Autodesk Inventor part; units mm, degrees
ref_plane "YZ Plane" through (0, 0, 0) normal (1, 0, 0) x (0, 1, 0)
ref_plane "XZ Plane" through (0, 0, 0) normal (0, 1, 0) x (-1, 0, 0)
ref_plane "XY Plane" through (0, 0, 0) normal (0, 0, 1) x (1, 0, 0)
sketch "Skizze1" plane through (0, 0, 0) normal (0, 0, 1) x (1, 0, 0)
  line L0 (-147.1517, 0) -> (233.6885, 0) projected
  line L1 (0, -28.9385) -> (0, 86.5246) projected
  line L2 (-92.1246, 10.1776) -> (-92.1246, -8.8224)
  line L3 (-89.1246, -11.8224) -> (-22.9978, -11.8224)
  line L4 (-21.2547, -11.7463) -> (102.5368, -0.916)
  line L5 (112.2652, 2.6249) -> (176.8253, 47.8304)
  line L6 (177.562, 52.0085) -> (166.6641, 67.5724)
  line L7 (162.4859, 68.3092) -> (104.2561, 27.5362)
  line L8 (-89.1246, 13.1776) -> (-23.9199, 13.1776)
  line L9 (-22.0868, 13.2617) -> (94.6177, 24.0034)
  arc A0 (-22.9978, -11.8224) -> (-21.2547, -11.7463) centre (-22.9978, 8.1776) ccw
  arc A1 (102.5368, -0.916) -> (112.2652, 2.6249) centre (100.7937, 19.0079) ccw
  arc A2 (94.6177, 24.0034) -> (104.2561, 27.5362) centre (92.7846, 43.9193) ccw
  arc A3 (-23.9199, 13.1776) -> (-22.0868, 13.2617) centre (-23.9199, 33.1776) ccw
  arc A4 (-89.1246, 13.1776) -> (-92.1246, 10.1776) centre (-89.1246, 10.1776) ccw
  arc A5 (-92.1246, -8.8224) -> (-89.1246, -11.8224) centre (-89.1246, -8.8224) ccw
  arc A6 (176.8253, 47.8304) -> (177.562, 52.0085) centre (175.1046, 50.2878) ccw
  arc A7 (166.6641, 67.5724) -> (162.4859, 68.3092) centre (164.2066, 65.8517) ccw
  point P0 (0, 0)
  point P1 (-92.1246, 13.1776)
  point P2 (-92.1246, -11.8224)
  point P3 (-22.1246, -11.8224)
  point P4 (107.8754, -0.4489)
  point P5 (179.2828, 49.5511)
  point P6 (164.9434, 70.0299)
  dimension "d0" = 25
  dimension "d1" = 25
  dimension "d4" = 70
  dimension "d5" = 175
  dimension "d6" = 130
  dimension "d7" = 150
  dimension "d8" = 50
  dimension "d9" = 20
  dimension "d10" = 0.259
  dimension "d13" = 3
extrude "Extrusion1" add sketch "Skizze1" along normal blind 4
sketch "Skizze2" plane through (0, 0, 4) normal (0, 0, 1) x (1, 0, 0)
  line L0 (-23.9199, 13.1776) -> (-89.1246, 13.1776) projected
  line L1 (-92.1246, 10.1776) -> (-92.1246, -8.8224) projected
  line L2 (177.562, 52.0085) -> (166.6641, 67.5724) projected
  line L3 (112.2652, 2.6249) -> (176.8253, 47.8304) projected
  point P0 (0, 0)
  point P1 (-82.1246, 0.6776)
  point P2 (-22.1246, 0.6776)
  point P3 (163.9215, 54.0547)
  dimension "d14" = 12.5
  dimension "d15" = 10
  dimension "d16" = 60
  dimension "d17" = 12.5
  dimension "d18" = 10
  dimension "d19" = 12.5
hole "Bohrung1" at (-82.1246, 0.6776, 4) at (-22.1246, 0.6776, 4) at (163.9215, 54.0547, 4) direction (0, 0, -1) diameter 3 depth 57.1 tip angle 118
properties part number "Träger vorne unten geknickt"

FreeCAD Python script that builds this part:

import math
import FreeCAD as App
import Part
import Sketcher
from FreeCAD import Vector
Q = App.Units.Quantity

doc = App.newDocument("Part")
body = doc.addObject("PartDesign::Body", "Body")

# Sketch on XY plane
sketch1 = body.newObject("Sketcher::SketchObject", "Sketch")
sketch1.AttachmentSupport = (doc.getObject("XY_Plane"), [""])
sketch1.MapMode = "FlatFace"
sketch1.addGeometry(Part.LineSegment(Vector(-92.1246, 10.1776, 0), Vector(-92.1246, -8.8224, 0)), False)
sketch1.addGeometry(Part.ArcOfCircle(Part.Circle(Vector(-89.1246, -8.8224, 0), Vector(0, 0, 1), 3), math.radians(180), math.radians(270)), False)
sketch1.addGeometry(Part.LineSegment(Vector(-89.1246, -11.8224, 0), Vector(-22.9978, -11.8224, 0)), False)
sketch1.addGeometry(Part.ArcOfCircle(Part.Circle(Vector(-22.997854, 8.18008, 0), Vector(0, 0, 1), 20.00248), math.radians(-89.999845), math.radians(-85.000509)), False)
sketch1.addGeometry(Part.LineSegment(Vector(-21.2547, -11.7463, 0), Vector(102.5368, -0.916, 0)), False)
sketch1.addGeometry(Part.ArcOfCircle(Part.Circle(Vector(100.7937, 19.0079, 0), Vector(0, 0, 1), 20.000005), math.radians(-85.000044), math.radians(-55)), False)
sketch1.addGeometry(Part.LineSegment(Vector(112.2652, 2.6249, 0), Vector(176.8253, 47.8304, 0)), False)
sketch1.addGeometry(Part.ArcOfCircle(Part.Circle(Vector(175.1046, 50.2878, 0), Vector(0, 0, 1), 2.999937), math.radians(-54.999844), math.radians(35.000156)), False)
sketch1.addGeometry(Part.LineSegment(Vector(177.562, 52.0085, 0), Vector(166.6641, 67.5724, 0)), False)
sketch1.addGeometry(Part.ArcOfCircle(Part.Circle(Vector(164.2066, 65.8517, 0), Vector(0, 0, 1), 3.000019), math.radians(34.999061), math.radians(124.999061)), False)
sketch1.addGeometry(Part.LineSegment(Vector(162.4859, 68.3092, 0), Vector(104.2561, 27.5362, 0)), False)
sketch1.addGeometry(Part.ArcOfCircle(Part.Circle(Vector(92.7846, 43.9193, 0), Vector(0, 0, 1), 20.000083), math.radians(-84.741197), math.radians(-55.000165)), False)
sketch1.addGeometry(Part.LineSegment(Vector(94.6177, 24.0034, 0), Vector(-22.0868, 13.2617, 0)), False)
sketch1.addGeometry(Part.ArcOfCircle(Part.Circle(Vector(-23.920809, 33.217195, 0), Vector(0, 0, 1), 20.039595), math.radians(-89.997402), math.radians(-84.748986)), False)
sketch1.addGeometry(Part.LineSegment(Vector(-23.9199, 13.1776, 0), Vector(-89.1246, 13.1776, 0)), False)
sketch1.addGeometry(Part.ArcOfCircle(Part.Circle(Vector(-89.1246, 10.1776, 0), Vector(0, 0, 1), 3), math.radians(90), math.radians(180)), False)
sketch1.addConstraint(Sketcher.Constraint("Coincident", 0, 2, 1, 1))
sketch1.addConstraint(Sketcher.Constraint("Coincident", 1, 2, 2, 1))
sketch1.addConstraint(Sketcher.Constraint("Coincident", 2, 2, 3, 1))
sketch1.addConstraint(Sketcher.Constraint("Coincident", 3, 2, 4, 1))
sketch1.addConstraint(Sketcher.Constraint("Coincident", 4, 2, 5, 1))
sketch1.addConstraint(Sketcher.Constraint("Coincident", 5, 2, 6, 1))
sketch1.addConstraint(Sketcher.Constraint("Coincident", 6, 2, 7, 1))
sketch1.addConstraint(Sketcher.Constraint("Coincident", 7, 2, 8, 1))
sketch1.addConstraint(Sketcher.Constraint("Coincident", 8, 2, 9, 1))
sketch1.addConstraint(Sketcher.Constraint("Coincident", 9, 2, 10, 1))
sketch1.addConstraint(Sketcher.Constraint("Coincident", 10, 2, 11, 2))
sketch1.addConstraint(Sketcher.Constraint("Coincident", 11, 1, 12, 1))
sketch1.addConstraint(Sketcher.Constraint("Coincident", 12, 2, 13, 2))
sketch1.addConstraint(Sketcher.Constraint("Coincident", 13, 1, 14, 1))
sketch1.addConstraint(Sketcher.Constraint("Coincident", 14, 2, 15, 1))
sketch1.addConstraint(Sketcher.Constraint("Coincident", 15, 2, 0, 1))
sketch1.addConstraint(Sketcher.Constraint("Vertical", 0))
sketch1.addConstraint(Sketcher.Constraint("Horizontal", 2))
sketch1.addConstraint(Sketcher.Constraint("Horizontal", 14))
sketch1.addConstraint(Sketcher.Constraint("Radius", 1, Q("3 mm")))
sketch1.addConstraint(Sketcher.Constraint("Radius", 5, Q("20 mm")))
sketch1.addConstraint(Sketcher.Constraint("Radius", 7, Q("3 mm")))
sketch1.addConstraint(Sketcher.Constraint("Radius", 9, Q("3 mm")))
sketch1.addConstraint(Sketcher.Constraint("Radius", 11, Q("20 mm")))
sketch1.addConstraint(Sketcher.Constraint("Radius", 15, Q("3 mm")))
sketch1.addConstraint(Sketcher.Constraint("DistanceX", 0, 2, 1, 2, Q("3 mm")))
sketch1.addConstraint(Sketcher.Constraint("DistanceY", 1, 2, 0, 2, Q("3 mm")))
sketch1.addConstraint(Sketcher.Constraint("DistanceY", 2, 2, 13, 1, Q("25 mm")))
sketch1.addConstraint(Sketcher.Constraint("DistanceX", 0, 2, 14, 2, Q("3 mm")))
sketch1.addConstraint(Sketcher.Constraint("DistanceY", 15, 2, 14, 2, Q("3 mm")))
sketch1.addConstraint(Sketcher.Constraint("Distance", 8, Q("19 mm")))
sketch1.addConstraint(Sketcher.Constraint("Radius", 3, Q("20.0025 mm")))
sketch1.addConstraint(Sketcher.Constraint("Radius", 13, Q("20.0396 mm")))
sketch1.addConstraint(Sketcher.Constraint("DistanceY", -1, 1, 3, 3, Q("8.18 mm")))
sketch1.addConstraint(Sketcher.Constraint("DistanceX", 13, 1, -1, 1, Q("23.92 mm")))
sketch1.addConstraint(Sketcher.Constraint("DistanceY", 5, 3, 7, 3, Q("31.28 mm")))
sketch1.addConstraint(Sketcher.Constraint("DistanceX", 11, 3, 7, 3, Q("82.32 mm")))
sketch1.addConstraint(Sketcher.Constraint("DistanceX", 1, 2, 3, 2, Q("67.87 mm")))
sketch1.addConstraint(Sketcher.Constraint("DistanceX", 5, 2, 6, 2, Q("64.56 mm")))
sketch1.addConstraint(Sketcher.Constraint("DistanceX", 2, 1, 2, 2, Q("66.1268 mm")))
sketch1.addConstraint(Sketcher.Constraint("DistanceX", 14, 2, 14, 1, Q("65.2047 mm")))
sketch1.addConstraint(Sketcher.Constraint("DistanceY", -1, 1, 5, 3, Q("19.008 mm")))
sketch1.addConstraint(Sketcher.Constraint("DistanceY", 4, 2, -1, 1, Q("0.916 mm")))
sketch1.addConstraint(Sketcher.Constraint("DistanceX", -1, 1, 7, 2, Q("177.562 mm")))
sketch1.addConstraint(Sketcher.Constraint("DistanceX", -1, 1, 8, 2, Q("166.664 mm")))
sketch1.addConstraint(Sketcher.Constraint("DistanceX", -1, 1, 9, 2, Q("162.486 mm")))
sketch1.addConstraint(Sketcher.Constraint("DistanceX", -1, 1, 10, 2, Q("104.256 mm")))
sketch1.addConstraint(Sketcher.Constraint("DistanceX", 5, 3, 7, 3, Q("74.311 mm")))
sketch1.addConstraint(Sketcher.Constraint("DistanceX", 9, 3, 7, 3, Q("10.898 mm")))
sketch1.addConstraint(Sketcher.Constraint("DistanceX", 13, 3, 3, 3, Q("0.923 mm")))
sketch1.addConstraint(Sketcher.Constraint("DistanceY", 13, 3, 11, 3, Q("10.702 mm")))
sketch1.addConstraint(Sketcher.Constraint("DistanceX", 13, 3, 2, 2, Q("0.923 mm")))
sketch1.addConstraint(Sketcher.Constraint("DistanceY", 5, 2, 5, 3, Q("16.383 mm")))
sketch1.addConstraint(Sketcher.Constraint("DistanceY", 6, 2, 7, 2, Q("4.178 mm")))
sketch1.addConstraint(Sketcher.Constraint("DistanceX", 11, 1, 5, 3, Q("6.176 mm")))
sketch1.addConstraint(Sketcher.Constraint("DistanceX", 3, 3, 12, 2, Q("0.911 mm")))
pad1 = body.newObject("PartDesign::Pad", "Pad")
pad1.Profile = sketch1
pad1.Length = 4

# Sketch on XY plane
sketch2 = body.newObject("Sketcher::SketchObject", "Sketch001")
sketch2.AttachmentSupport = (doc.getObject("XY_Plane"), [""])
sketch2.MapMode = "FlatFace"
sketch2.AttachmentOffset = App.Placement(Vector(0, 0, 4), App.Rotation())
sketch2.addGeometry(Part.Circle(Vector(-82.1246, 0.6776, 0), Vector(0, 0, 1), 1.5), False)
sketch2.addGeometry(Part.Circle(Vector(-22.1246, 0.6776, 0), Vector(0, 0, 1), 1.5), False)
sketch2.addGeometry(Part.Circle(Vector(163.9215, 54.0547, 0), Vector(0, 0, 1), 1.5), False)
sketch2.addConstraint(Sketcher.Constraint("Equal", 0, 1))
sketch2.addConstraint(Sketcher.Constraint("Equal", 1, 2))
sketch2.addConstraint(Sketcher.Constraint("Horizontal", 0, 3, 1, 3))
sketch2.addConstraint(Sketcher.Constraint("Diameter", 0, Q("3 mm")))
sketch2.addConstraint(Sketcher.Constraint("DistanceX", 0, 3, 1, 3, Q("60 mm")))
sketch2.addConstraint(Sketcher.Constraint("DistanceX", 1, 3, 2, 3, Q("186.046 mm")))
sketch2.addConstraint(Sketcher.Constraint("DistanceY", 1, 3, 2, 3, Q("53.377 mm")))
sketch2.addConstraint(Sketcher.Constraint("DistanceX", 0, 3, -1, 1, Q("82.1246 mm")))
sketch2.addConstraint(Sketcher.Constraint("DistanceY", -1, 1, 0, 3, Q("0.6776 mm")))
doc.recompute()
hole = body.newObject("PartDesign::Hole", "Hole")
hole.Profile = sketch2
hole.ThreadType = "None"
hole.Diameter = 3
hole.DepthType = "Dimension"
hole.Depth = 57.1
hole.DrillPoint = "Angled"
hole.DrillPointAngle = 118

doc.recompute()
